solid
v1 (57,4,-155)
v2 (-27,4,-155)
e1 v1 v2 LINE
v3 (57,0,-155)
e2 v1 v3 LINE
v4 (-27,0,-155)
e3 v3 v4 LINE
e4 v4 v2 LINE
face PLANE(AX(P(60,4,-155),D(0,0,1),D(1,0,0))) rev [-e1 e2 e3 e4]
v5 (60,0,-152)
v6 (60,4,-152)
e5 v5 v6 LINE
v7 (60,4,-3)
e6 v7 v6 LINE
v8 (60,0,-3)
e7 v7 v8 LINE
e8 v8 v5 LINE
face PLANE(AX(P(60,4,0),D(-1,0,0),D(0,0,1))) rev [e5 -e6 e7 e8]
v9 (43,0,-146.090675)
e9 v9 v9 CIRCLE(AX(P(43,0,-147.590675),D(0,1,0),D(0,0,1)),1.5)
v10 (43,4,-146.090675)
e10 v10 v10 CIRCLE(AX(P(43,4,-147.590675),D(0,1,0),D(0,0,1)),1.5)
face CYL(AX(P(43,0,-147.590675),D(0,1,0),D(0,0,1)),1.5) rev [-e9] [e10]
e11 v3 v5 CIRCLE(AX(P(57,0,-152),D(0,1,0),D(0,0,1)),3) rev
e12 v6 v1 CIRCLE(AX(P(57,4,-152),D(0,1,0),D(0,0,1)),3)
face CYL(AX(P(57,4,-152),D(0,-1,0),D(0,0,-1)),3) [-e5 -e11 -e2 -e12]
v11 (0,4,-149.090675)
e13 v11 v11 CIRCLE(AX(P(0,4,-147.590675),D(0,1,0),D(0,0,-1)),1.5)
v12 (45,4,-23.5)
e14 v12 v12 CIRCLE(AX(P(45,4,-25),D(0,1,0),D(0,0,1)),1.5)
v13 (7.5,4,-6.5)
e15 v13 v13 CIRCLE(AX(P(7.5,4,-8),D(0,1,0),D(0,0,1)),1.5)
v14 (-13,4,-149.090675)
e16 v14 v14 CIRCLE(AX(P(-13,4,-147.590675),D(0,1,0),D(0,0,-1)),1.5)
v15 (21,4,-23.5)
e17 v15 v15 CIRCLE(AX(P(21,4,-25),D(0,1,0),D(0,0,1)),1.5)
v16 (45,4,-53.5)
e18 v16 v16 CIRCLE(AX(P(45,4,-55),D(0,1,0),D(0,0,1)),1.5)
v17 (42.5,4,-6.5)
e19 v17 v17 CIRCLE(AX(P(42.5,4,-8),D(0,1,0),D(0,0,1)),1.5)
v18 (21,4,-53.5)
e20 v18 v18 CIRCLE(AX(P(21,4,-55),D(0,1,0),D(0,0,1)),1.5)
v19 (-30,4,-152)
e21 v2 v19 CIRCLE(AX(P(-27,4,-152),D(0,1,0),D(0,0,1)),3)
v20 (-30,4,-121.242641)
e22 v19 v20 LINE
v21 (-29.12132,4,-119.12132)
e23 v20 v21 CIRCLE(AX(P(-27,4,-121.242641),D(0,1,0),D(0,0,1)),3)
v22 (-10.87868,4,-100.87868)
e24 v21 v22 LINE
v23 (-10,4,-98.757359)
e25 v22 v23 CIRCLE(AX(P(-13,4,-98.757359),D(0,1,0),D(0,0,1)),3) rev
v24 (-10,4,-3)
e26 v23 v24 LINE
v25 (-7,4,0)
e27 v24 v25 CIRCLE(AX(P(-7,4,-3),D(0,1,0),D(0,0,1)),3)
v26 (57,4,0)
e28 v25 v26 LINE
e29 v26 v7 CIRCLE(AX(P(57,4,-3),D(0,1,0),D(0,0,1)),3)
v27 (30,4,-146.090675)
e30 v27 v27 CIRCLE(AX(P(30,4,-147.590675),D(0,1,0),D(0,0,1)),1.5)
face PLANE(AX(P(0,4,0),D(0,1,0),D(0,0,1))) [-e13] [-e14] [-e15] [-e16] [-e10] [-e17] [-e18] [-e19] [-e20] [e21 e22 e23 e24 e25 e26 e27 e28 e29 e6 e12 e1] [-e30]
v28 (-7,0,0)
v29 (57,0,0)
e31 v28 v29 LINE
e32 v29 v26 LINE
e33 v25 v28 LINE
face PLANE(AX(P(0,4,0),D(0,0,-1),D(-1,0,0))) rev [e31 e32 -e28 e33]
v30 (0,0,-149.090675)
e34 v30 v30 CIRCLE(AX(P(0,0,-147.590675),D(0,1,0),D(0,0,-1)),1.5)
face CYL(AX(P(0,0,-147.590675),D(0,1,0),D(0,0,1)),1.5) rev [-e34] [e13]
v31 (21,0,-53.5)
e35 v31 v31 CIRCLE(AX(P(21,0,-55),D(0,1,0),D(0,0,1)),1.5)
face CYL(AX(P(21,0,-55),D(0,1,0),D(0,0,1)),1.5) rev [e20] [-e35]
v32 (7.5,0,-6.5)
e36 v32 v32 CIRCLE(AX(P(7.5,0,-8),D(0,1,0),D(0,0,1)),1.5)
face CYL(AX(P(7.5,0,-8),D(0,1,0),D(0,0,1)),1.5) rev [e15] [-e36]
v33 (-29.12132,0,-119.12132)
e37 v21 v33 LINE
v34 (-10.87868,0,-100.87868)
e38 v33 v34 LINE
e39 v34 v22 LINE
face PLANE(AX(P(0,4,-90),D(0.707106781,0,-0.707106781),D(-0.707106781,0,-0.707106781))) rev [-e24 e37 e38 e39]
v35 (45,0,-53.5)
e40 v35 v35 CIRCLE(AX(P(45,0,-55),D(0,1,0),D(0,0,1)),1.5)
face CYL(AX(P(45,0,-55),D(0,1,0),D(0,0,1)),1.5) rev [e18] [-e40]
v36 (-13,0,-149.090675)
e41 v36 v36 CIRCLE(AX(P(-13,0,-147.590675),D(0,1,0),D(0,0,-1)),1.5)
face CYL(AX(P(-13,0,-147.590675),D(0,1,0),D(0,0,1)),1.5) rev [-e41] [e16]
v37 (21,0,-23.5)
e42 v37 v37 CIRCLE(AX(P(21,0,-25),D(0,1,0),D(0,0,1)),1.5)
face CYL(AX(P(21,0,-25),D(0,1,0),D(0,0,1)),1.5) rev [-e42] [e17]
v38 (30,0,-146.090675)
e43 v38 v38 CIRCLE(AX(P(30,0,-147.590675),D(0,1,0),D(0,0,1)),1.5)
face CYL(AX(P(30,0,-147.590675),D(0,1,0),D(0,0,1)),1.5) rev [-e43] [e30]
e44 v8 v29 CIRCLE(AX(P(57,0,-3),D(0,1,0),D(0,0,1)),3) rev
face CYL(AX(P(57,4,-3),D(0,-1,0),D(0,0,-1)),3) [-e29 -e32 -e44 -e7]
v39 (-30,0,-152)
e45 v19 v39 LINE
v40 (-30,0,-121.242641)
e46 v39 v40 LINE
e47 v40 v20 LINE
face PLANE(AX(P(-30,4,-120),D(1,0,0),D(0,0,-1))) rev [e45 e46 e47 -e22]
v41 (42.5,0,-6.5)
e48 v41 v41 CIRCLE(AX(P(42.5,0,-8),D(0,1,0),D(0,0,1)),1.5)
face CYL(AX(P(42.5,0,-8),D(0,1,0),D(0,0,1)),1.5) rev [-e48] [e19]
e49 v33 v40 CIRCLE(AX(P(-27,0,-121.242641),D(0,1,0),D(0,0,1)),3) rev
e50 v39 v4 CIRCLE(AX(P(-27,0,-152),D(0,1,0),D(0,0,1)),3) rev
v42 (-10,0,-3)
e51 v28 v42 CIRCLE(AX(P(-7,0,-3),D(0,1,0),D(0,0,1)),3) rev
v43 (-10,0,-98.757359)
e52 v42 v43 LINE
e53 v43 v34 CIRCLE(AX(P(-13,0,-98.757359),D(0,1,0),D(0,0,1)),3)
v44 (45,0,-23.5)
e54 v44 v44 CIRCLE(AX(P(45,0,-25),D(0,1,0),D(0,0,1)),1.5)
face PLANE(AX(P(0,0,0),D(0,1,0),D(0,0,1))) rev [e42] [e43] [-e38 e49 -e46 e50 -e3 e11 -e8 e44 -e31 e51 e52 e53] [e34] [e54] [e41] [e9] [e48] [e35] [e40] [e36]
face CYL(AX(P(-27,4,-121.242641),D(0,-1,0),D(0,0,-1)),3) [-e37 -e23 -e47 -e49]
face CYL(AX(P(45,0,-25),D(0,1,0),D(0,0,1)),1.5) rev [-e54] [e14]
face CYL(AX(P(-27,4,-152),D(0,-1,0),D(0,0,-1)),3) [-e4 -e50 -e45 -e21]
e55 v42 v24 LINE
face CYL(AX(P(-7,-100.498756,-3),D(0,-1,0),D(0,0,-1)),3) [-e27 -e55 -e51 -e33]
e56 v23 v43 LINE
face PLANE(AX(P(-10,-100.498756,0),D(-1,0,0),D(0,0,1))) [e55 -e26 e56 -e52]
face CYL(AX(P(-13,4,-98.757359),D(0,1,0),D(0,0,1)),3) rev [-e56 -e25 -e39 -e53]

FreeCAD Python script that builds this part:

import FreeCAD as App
import Part
import Sketcher

V = App.Vector
Q = App.Units.Quantity


def edges_at(feature, points):
    """Names of the edges that pass closest to the given points."""
    edges = feature.Shape.Edges
    near = lambda p: min(range(len(edges)), key=lambda i: edges[i].distToShape(Part.Vertex(*p))[0])
    return sorted({f"Edge{near(p) + 1}" for p in points})


def add_polygon(sketch, points):
    """Adds a closed chain of lines whose ends are joined by coincident constraints."""
    first, n = sketch.GeometryCount, len(points)
    for a, b in zip(points, points[1:] + points[:1]):
        sketch.addGeometry(Part.LineSegment(App.Vector(*a, 0), App.Vector(*b, 0)), False)
    for i in range(n):
        sketch.addConstraint(Sketcher.Constraint("Coincident", first + i, 2, first + (i + 1) % n, 1))

doc = App.newDocument("Part")
params = doc.addObject("Spreadsheet::Sheet", "Params")
for row, (alias, value) in enumerate([
    ("sketch1_width", "60 mm"),
    ("sketch1_width2", "90 mm"),
    ("sketch1_height", "155 mm"),
    ("sketch1_height2", "35 mm"),
    ("pad1_length", "4 mm"),
    ("sketch2_diameter", "3 mm"),
    ("pocket1_length", "4 mm"),
    ("sketch3_diameter", "3 mm"),
    ("pocket2_length", "4 mm"),
    ("sketch4_width", "10 mm"),
    ("sketch4_height", "90 mm"),
    ("sketch4_height2", "100 mm"),
    ("pad2_length", "4 mm"),
    ("fillet_radius", "3 mm"),
    ("sketch5_diameter", "3 mm"),
], start=1):
    params.set(f"A{row}", alias)
    params.set(f"B{row}", "=" + value)
    params.setAlias(f"B{row}", alias)

body = doc.addObject("PartDesign::Body", "Body")

# Sketch on XZ plane
sketch1 = body.newObject("Sketcher::SketchObject", "Sketch")
sketch1.AttachmentSupport = (doc.getObject("XZ_Plane"), [""])
sketch1.MapMode = "FlatFace"
add_polygon(sketch1, [(0, 0), (60, 0), (60, -155), (-30, -155), (-30, -120), (0, -90)])  # lines 0-5
sketch1.addConstraint(Sketcher.Constraint("Horizontal", 0))
sketch1.addConstraint(Sketcher.Constraint("Vertical", 1))
sketch1.addConstraint(Sketcher.Constraint("Horizontal", 2))
sketch1.addConstraint(Sketcher.Constraint("Vertical", 3))
sketch1.addConstraint(Sketcher.Constraint("Vertical", 5))
sketch1.addConstraint(Sketcher.Constraint("Coincident", 5, 2, -1, 1))
sketch1.addConstraint(Sketcher.Constraint("Equal", 2, 5))
sketch1.addConstraint(Sketcher.Constraint("DistanceX", 0, 1, 0, 2, Q("60 mm")))
sketch1.addConstraint(Sketcher.Constraint("DistanceX", 2, 2, 2, 1, Q("90 mm")))
sketch1.addConstraint(Sketcher.Constraint("DistanceY", 1, 2, 1, 1, Q("155 mm")))
sketch1.addConstraint(Sketcher.Constraint("DistanceY", 3, 1, 3, 2, Q("35 mm")))
sketch1.setExpression("Constraints[13]", "Params.sketch1_width")
sketch1.setExpression("Constraints[14]", "Params.sketch1_width2")
sketch1.setExpression("Constraints[15]", "Params.sketch1_height")
sketch1.setExpression("Constraints[16]", "Params.sketch1_height2")
pad1 = body.newObject("PartDesign::Pad", "Pad")
pad1.Profile = sketch1
pad1.setExpression("Length", "Params.pad1_length")
pad1.Reversed = True

# Sketch on XZ plane
sketch2 = body.newObject("Sketcher::SketchObject", "Sketch001")
sketch2.AttachmentSupport = (doc.getObject("XZ_Plane"), [""])
sketch2.MapMode = "FlatFace"
sketch2.AttachmentOffset = App.Placement(V(0, 0, -4), App.Rotation())
sketch2.addGeometry(Part.Circle(V(45, -25, 0), V(0, 0, 1), 1.5), False)
sketch2.addGeometry(Part.Circle(V(21, -25, 0), V(0, 0, 1), 1.5), False)
sketch2.addGeometry(Part.Circle(V(45, -55, 0), V(0, 0, 1), 1.5), False)
sketch2.addGeometry(Part.Circle(V(21, -55, 0), V(0, 0, 1), 1.5), False)
sketch2.addConstraint(Sketcher.Constraint("Equal", 0, 1))
sketch2.addConstraint(Sketcher.Constraint("Equal", 1, 2))
sketch2.addConstraint(Sketcher.Constraint("Equal", 2, 3))
sketch2.addConstraint(Sketcher.Constraint("Horizontal", 0, 3, 1, 3))
sketch2.addConstraint(Sketcher.Constraint("Horizontal", 2, 3, 3, 3))
sketch2.addConstraint(Sketcher.Constraint("Vertical", 0, 3, 2, 3))
sketch2.addConstraint(Sketcher.Constraint("Vertical", 1, 3, 3, 3))
sketch2.addConstraint(Sketcher.Constraint("Diameter", 0, Q("3 mm")))
sketch2.addConstraint(Sketcher.Constraint("DistanceX", -1, 1, 0, 3, Q("45 mm")))
sketch2.addConstraint(Sketcher.Constraint("DistanceY", 0, 3, -1, 1, Q("25 mm")))
sketch2.addConstraint(Sketcher.Constraint("DistanceX", -1, 1, 1, 3, Q("21 mm")))
sketch2.addConstraint(Sketcher.Constraint("DistanceY", 2, 3, -1, 1, Q("55 mm")))
sketch2.setExpression("Constraints[7]", "Params.sketch2_diameter")
pocket1 = body.newObject("PartDesign::Pocket", "Pocket")
pocket1.Profile = sketch2
pocket1.setExpression("Length", "Params.pocket1_length")
pocket1.Reversed = True

# Sketch on XZ plane
sketch3 = body.newObject("Sketcher::SketchObject", "Sketch002")
sketch3.AttachmentSupport = (doc.getObject("XZ_Plane"), [""])
sketch3.MapMode = "FlatFace"
sketch3.AttachmentOffset = App.Placement(V(0, 0, -4), App.Rotation())
sketch3.addGeometry(Part.Circle(V(30, -147.6, 0), V(0, 0, 1), 1.5), False)
sketch3.addGeometry(Part.Circle(V(43, -147.6, 0), V(0, 0, 1), 1.5), False)
sketch3.addGeometry(Part.Circle(V(-13, -147.6, 0), V(0, 0, 1), 1.5), False)
sketch3.addGeometry(Part.Circle(V(0, -147.6, 0), V(0, 0, 1), 1.5), False)
sketch3.addConstraint(Sketcher.Constraint("Equal", 0, 1))
sketch3.addConstraint(Sketcher.Constraint("Equal", 1, 2))
sketch3.addConstraint(Sketcher.Constraint("Equal", 2, 3))
sketch3.addConstraint(Sketcher.Constraint("PointOnObject", 3, 3, -2))
sketch3.addConstraint(Sketcher.Constraint("Horizontal", 0, 3, 1, 3))
sketch3.addConstraint(Sketcher.Constraint("Horizontal", 1, 3, 2, 3))
sketch3.addConstraint(Sketcher.Constraint("Horizontal", 2, 3, 3, 3))
sketch3.addConstraint(Sketcher.Constraint("Diameter", 0, Q("3 mm")))
sketch3.addConstraint(Sketcher.Constraint("DistanceX", -1, 1, 0, 3, Q("30 mm")))
sketch3.addConstraint(Sketcher.Constraint("DistanceX", -1, 1, 1, 3, Q("43 mm")))
sketch3.addConstraint(Sketcher.Constraint("DistanceX", 2, 3, -1, 1, Q("13 mm")))
sketch3.addConstraint(Sketcher.Constraint("DistanceY", 0, 3, -1, 1, Q("147.590675 mm")))
sketch3.setExpression("Constraints[7]", "Params.sketch3_diameter")
pocket2 = body.newObject("PartDesign::Pocket", "Pocket001")
pocket2.Profile = sketch3
pocket2.setExpression("Length", "Params.pocket2_length")
pocket2.Reversed = True

# Sketch on XZ plane
sketch4 = body.newObject("Sketcher::SketchObject", "Sketch003")
sketch4.AttachmentSupport = (doc.getObject("XZ_Plane"), [""])
sketch4.MapMode = "FlatFace"
sketch4.AttachmentOffset = App.Placement(V(0, 0, -4), App.Rotation())
add_polygon(sketch4, [(-10, 0), (0, 0), (0, -90), (-10, -100)])  # lines 0-3
sketch4.addConstraint(Sketcher.Constraint("Horizontal", 0))
sketch4.addConstraint(Sketcher.Constraint("Vertical", 1))
sketch4.addConstraint(Sketcher.Constraint("Vertical", 3))
sketch4.addConstraint(Sketcher.Constraint("Coincident", 0, 2, -1, 1))
sketch4.addConstraint(Sketcher.Constraint("DistanceX", 0, 1, 0, 2, Q("10 mm")))
sketch4.addConstraint(Sketcher.Constraint("DistanceY", 1, 2, 1, 1, Q("90 mm")))
sketch4.addConstraint(Sketcher.Constraint("DistanceY", 3, 1, 3, 2, Q("100 mm")))
sketch4.setExpression("Constraints[8]", "Params.sketch4_width")
sketch4.setExpression("Constraints[9]", "Params.sketch4_height")
sketch4.setExpression("Constraints[10]", "Params.sketch4_height2")
pad2 = body.newObject("PartDesign::Pad", "Pad001")
pad2.Profile = sketch4
pad2.setExpression("Length", "Params.pad2_length")
doc.recompute()

fillet = body.newObject("PartDesign::Fillet", "Fillet")
fillet.Base = (pad2, edges_at(pad2, [
    (-30, 2, -120),
    (-30, 2, -155),
    (60, 2, -155),
    (60, 2, 0),
    (-10, 2, 0),
    (-10, 2, -100),
]))
fillet.setExpression("Radius", "Params.fillet_radius")

# Sketch on XZ plane
sketch5 = body.newObject("Sketcher::SketchObject", "Sketch004")
sketch5.AttachmentSupport = (doc.getObject("XZ_Plane"), [""])
sketch5.MapMode = "FlatFace"
sketch5.AttachmentOffset = App.Placement(V(0, 0, -4), App.Rotation())
sketch5.addGeometry(Part.Circle(V(7.5, -8, 0), V(0, 0, 1), 1.5), False)
sketch5.addGeometry(Part.Circle(V(42.5, -8, 0), V(0, 0, 1), 1.5), False)
sketch5.addConstraint(Sketcher.Constraint("Equal", 0, 1))
sketch5.addConstraint(Sketcher.Constraint("Horizontal", 0, 3, 1, 3))
sketch5.addConstraint(Sketcher.Constraint("Diameter", 0, Q("3 mm")))
sketch5.addConstraint(Sketcher.Constraint("DistanceY", 0, 3, -1, 1, Q("8 mm")))
sketch5.addConstraint(Sketcher.Constraint("DistanceX", 0, 3, 1, 3, Q("35 mm")))
sketch5.addConstraint(Sketcher.Constraint("DistanceX", -1, 1, 0, 3, Q("7.5 mm")))
sketch5.setExpression("Constraints[2]", "Params.sketch5_diameter")
pocket3 = body.newObject("PartDesign::Pocket", "Pocket002")
pocket3.Profile = sketch5
pocket3.Type = "ThroughAll"
pocket3.Reversed = True

doc.recompute()
